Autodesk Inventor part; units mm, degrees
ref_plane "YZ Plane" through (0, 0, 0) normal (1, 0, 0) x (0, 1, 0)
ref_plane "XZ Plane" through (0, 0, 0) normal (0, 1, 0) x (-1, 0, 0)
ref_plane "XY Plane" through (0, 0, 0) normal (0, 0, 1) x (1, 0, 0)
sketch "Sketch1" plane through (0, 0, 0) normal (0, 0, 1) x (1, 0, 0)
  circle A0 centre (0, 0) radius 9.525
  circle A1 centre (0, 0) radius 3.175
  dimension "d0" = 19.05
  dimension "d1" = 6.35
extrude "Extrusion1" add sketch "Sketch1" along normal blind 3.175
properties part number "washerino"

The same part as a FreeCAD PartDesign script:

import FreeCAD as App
import Part
import Sketcher
from FreeCAD import Vector
Q = App.Units.Quantity

doc = App.newDocument("Part")
body = doc.addObject("PartDesign::Body", "Body")

# Sketch on XY plane
sketch1 = body.newObject("Sketcher::SketchObject", "Sketch")
sketch1.AttachmentSupport = (doc.getObject("XY_Plane"), [""])
sketch1.MapMode = "FlatFace"
sketch1.addGeometry([
    Part.Circle(Vector(0, 0, 0), Vector(0, 0, 1), 9.5),
    Part.Circle(Vector(0, 0, 0), Vector(0, 0, 1), 3.2),
], False)
sketch1.addConstraint([
    Sketcher.Constraint("Coincident", 0, 3, -1, 1),
    Sketcher.Constraint("Coincident", 1, 3, -1, 1),
    Sketcher.Constraint("Diameter", 0, Q("0.75 in")),
    Sketcher.Constraint("Diameter", 1, Q("0.25 in")),
])
pad1 = body.newObject("PartDesign::Pad", "Pad")
pad1.Profile = sketch1
pad1.Length = Q("0.125 in")

doc.recompute()
